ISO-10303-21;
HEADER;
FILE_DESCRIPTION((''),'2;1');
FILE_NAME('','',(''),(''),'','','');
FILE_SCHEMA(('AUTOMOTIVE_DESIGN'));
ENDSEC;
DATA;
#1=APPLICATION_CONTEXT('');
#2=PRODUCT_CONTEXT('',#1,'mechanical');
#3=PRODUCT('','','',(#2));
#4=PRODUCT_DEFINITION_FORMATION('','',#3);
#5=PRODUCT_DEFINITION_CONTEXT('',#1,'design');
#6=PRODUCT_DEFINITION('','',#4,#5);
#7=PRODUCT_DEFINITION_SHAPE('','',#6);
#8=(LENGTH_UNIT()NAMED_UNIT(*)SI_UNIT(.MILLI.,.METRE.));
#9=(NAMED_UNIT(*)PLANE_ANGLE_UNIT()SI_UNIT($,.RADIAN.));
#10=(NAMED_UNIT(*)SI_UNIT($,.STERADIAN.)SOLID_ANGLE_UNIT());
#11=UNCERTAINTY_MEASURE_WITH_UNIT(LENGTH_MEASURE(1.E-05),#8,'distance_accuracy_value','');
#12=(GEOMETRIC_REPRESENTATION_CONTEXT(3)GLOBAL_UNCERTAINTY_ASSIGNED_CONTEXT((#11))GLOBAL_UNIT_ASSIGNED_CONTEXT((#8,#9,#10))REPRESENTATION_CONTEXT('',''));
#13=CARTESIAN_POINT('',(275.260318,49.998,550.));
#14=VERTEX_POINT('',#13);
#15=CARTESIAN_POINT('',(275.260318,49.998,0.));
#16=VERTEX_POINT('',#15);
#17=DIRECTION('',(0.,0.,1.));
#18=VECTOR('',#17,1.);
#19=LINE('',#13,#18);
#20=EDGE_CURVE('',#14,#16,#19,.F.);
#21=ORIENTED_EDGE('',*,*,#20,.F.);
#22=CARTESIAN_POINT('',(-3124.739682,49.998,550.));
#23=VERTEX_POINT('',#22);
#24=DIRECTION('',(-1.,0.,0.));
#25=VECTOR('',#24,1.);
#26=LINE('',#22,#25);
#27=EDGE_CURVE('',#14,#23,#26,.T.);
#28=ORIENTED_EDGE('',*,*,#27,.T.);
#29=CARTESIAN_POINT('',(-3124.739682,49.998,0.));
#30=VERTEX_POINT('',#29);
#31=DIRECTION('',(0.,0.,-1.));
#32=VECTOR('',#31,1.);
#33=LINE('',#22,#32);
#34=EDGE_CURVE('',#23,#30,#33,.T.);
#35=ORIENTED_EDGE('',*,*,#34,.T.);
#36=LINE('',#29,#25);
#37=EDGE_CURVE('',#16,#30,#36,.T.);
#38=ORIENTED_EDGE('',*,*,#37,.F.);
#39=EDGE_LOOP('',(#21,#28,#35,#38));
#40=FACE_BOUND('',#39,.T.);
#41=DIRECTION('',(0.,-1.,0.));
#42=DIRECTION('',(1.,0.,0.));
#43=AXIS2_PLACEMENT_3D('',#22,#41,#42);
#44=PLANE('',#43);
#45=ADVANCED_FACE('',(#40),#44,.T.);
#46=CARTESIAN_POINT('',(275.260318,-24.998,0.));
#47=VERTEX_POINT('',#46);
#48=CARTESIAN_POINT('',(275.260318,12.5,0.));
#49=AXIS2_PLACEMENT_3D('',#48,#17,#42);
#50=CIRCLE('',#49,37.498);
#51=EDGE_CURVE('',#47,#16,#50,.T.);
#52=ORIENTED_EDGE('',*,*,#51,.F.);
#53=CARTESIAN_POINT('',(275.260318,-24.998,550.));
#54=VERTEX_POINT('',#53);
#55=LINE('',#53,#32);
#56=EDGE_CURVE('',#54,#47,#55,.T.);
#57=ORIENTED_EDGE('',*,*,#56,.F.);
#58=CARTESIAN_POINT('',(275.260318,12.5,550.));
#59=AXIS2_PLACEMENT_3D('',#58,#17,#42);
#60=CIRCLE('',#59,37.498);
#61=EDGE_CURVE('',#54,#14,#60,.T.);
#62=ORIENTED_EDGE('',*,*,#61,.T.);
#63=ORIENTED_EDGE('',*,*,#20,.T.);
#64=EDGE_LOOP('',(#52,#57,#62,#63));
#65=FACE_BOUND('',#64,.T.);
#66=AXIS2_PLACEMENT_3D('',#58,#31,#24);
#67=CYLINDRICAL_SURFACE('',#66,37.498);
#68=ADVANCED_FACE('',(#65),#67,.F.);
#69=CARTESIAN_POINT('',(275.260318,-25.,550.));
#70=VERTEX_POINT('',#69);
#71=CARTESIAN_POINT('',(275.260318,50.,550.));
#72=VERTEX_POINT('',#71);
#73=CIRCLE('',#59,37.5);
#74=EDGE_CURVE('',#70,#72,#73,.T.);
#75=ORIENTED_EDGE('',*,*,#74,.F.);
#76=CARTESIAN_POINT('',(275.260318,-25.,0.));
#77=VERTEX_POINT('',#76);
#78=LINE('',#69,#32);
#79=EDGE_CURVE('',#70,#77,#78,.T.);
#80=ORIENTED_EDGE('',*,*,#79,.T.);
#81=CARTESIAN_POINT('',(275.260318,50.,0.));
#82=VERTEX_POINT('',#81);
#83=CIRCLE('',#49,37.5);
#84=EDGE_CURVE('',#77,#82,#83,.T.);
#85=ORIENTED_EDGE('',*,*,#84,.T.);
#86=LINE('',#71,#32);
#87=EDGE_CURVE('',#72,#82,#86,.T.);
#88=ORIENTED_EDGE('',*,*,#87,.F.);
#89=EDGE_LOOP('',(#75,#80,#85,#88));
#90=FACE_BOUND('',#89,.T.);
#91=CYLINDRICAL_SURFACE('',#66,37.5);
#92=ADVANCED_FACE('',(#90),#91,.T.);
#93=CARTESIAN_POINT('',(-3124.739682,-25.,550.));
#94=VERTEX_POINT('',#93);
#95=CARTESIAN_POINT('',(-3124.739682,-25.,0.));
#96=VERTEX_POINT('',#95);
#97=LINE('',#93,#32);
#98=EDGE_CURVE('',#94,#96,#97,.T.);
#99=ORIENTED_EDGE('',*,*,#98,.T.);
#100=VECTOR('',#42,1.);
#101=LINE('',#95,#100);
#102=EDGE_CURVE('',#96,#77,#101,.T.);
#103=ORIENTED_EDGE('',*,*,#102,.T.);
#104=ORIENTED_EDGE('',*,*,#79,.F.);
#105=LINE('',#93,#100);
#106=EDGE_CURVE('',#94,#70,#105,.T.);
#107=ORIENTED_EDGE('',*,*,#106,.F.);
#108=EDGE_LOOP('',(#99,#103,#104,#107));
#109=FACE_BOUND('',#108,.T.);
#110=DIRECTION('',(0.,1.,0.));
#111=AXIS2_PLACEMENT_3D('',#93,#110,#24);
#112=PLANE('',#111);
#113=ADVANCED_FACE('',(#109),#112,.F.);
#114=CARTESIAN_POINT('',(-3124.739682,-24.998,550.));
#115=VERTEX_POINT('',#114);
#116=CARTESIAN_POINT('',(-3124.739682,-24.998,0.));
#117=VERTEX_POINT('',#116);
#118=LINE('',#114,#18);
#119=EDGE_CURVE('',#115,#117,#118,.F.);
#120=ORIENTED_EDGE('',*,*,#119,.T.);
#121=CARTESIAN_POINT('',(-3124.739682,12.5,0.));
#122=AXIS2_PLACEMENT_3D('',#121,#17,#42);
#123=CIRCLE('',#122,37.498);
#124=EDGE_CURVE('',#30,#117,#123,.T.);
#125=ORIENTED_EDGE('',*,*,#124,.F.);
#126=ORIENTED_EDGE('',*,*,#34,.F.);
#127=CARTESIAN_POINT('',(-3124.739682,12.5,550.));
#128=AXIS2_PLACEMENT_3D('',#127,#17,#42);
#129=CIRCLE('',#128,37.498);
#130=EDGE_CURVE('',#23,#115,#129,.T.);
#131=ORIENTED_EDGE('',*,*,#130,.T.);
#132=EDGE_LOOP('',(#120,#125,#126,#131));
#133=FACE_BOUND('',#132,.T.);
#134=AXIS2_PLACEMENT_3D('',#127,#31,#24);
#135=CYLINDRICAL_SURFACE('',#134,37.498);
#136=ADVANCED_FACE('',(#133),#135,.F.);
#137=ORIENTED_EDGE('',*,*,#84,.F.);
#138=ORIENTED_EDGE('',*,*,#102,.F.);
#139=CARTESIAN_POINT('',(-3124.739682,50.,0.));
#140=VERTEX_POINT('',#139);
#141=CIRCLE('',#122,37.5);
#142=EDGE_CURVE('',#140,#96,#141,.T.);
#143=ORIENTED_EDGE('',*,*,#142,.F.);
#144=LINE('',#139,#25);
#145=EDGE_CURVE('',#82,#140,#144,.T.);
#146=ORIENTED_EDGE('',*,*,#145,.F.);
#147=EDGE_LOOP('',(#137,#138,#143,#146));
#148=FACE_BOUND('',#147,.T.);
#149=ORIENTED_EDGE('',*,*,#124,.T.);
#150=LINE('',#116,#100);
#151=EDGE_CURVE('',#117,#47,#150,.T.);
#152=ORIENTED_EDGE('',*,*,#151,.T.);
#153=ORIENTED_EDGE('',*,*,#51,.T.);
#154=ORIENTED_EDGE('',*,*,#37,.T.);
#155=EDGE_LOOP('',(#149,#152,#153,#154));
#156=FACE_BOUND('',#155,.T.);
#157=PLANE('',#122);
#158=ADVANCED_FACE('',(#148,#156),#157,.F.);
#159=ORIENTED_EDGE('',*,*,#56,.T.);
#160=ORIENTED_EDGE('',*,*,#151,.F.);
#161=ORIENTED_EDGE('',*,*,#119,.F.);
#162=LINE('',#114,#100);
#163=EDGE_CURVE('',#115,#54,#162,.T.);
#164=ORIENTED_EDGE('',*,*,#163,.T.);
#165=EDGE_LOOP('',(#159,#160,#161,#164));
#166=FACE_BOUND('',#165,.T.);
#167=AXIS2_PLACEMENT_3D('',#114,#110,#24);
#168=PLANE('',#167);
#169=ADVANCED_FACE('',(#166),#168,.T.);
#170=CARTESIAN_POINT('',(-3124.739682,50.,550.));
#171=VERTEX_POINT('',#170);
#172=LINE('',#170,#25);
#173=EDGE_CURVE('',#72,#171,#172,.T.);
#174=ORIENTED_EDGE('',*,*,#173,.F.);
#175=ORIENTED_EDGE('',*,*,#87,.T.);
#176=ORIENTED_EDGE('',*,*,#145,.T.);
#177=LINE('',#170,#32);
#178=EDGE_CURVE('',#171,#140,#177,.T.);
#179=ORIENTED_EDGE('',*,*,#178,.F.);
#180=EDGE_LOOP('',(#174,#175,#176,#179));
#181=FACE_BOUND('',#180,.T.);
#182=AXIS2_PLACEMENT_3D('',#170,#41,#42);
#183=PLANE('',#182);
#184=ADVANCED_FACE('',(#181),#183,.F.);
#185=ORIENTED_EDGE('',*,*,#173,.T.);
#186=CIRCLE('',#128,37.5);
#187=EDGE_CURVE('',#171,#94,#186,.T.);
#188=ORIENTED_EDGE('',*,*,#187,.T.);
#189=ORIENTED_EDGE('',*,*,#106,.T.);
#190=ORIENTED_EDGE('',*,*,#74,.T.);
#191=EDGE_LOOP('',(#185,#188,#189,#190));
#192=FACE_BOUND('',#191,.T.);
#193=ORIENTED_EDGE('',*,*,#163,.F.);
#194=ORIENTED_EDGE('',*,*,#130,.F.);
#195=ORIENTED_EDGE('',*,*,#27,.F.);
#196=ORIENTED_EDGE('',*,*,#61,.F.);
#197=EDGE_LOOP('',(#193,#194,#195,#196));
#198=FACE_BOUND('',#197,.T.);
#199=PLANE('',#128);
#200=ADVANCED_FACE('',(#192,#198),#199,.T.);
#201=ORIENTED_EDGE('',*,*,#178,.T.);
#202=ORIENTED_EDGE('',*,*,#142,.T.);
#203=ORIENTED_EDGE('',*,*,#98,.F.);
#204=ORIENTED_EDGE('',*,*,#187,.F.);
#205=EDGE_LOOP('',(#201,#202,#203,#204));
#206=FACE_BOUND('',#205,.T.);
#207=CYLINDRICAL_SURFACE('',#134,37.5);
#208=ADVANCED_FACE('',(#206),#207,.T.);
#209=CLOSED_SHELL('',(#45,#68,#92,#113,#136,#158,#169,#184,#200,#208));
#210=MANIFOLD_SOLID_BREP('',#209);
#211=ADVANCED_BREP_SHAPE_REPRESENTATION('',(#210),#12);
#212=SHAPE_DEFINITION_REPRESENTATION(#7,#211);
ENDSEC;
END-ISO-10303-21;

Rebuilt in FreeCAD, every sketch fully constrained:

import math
import FreeCAD as App
import Part
import Sketcher


def faces_at(feature, points):
    """Names of the faces that lie closest to the given points."""
    faces = feature.Shape.Faces
    near = lambda p: min(range(len(faces)), key=lambda i: faces[i].distToShape(Part.Vertex(*p))[0])
    return sorted({f"Face{near(p) + 1}" for p in points})

doc = App.newDocument("Part")
params = doc.addObject("Spreadsheet::Sheet", "Params")
for row, (alias, value) in enumerate([
    ("sketch1_radius", "37.5 mm"),
    ("sketch1_width", "3400 mm"),
    ("pad1_length", "550 mm"),
    ("thickness_wall", "0.002 mm"),
], start=1):
    params.set(f"A{row}", alias)
    params.set(f"B{row}", "=" + value)
    params.setAlias(f"B{row}", alias)

body = doc.addObject("PartDesign::Body", "Body")

# Sketch on XY plane
sketch1 = doc.addObject("Sketcher::SketchObject", "Sketch")
body.addObject(sketch1)
sketch1.AttachmentSupport = (doc.XY_Plane, [""])
sketch1.MapMode = "FlatFace"
sketch1.addGeometry([
    Part.LineSegment(App.Vector(275, 50, 0), App.Vector(-3125, 50, 0)),
    Part.ArcOfCircle(Part.Circle(App.Vector(-3125, 12, 0), App.Vector(0, 0, 1), 38), math.radians(90), math.radians(270)),
    Part.LineSegment(App.Vector(-3125, -25, 0), App.Vector(275, -25, 0)),
    Part.ArcOfCircle(Part.Circle(App.Vector(275, 12, 0), App.Vector(0, 0, 1), 38), math.radians(-90), math.radians(90)),
], False)
sketch1.addConstraint([
    Sketcher.Constraint("Tangent", 0, 2, 1, 1),
    Sketcher.Constraint("Tangent", 1, 2, 2, 1),
    Sketcher.Constraint("Tangent", 2, 2, 3, 1),
    Sketcher.Constraint("Tangent", 3, 2, 0, 1),
    Sketcher.Constraint("Horizontal", 0),
    Sketcher.Constraint("Horizontal", 2),
    Sketcher.Constraint("Radius", 1, 37.5),
    Sketcher.Constraint("DistanceX", 0, 2, 0, 1, 3400.0),
    Sketcher.Constraint("DistanceY", -1, 1, 0, 2, 50.0),
    Sketcher.Constraint("DistanceX", 1, 3, -1, 1, 3124.739682),
])
sketch1.setExpression("Constraints[6]", "Params.sketch1_radius")
sketch1.setExpression("Constraints[7]", "Params.sketch1_width")
pad1 = doc.addObject("PartDesign::Pad", "Pad")
body.addObject(pad1)
pad1.Profile = sketch1
pad1.setExpression("Length", "Params.pad1_length")
doc.recompute()

thickness = doc.addObject("PartDesign::Thickness", "Thickness")
body.addObject(thickness)
thickness.Base = (pad1, faces_at(pad1, [(-1424.74, 12.5, 550), (-1424.74, 12.5, 0)]))
thickness.setExpression("Value", "Params.thickness_wall")
thickness.Reversed = True
thickness.Join = "Intersection"

doc.recompute()
